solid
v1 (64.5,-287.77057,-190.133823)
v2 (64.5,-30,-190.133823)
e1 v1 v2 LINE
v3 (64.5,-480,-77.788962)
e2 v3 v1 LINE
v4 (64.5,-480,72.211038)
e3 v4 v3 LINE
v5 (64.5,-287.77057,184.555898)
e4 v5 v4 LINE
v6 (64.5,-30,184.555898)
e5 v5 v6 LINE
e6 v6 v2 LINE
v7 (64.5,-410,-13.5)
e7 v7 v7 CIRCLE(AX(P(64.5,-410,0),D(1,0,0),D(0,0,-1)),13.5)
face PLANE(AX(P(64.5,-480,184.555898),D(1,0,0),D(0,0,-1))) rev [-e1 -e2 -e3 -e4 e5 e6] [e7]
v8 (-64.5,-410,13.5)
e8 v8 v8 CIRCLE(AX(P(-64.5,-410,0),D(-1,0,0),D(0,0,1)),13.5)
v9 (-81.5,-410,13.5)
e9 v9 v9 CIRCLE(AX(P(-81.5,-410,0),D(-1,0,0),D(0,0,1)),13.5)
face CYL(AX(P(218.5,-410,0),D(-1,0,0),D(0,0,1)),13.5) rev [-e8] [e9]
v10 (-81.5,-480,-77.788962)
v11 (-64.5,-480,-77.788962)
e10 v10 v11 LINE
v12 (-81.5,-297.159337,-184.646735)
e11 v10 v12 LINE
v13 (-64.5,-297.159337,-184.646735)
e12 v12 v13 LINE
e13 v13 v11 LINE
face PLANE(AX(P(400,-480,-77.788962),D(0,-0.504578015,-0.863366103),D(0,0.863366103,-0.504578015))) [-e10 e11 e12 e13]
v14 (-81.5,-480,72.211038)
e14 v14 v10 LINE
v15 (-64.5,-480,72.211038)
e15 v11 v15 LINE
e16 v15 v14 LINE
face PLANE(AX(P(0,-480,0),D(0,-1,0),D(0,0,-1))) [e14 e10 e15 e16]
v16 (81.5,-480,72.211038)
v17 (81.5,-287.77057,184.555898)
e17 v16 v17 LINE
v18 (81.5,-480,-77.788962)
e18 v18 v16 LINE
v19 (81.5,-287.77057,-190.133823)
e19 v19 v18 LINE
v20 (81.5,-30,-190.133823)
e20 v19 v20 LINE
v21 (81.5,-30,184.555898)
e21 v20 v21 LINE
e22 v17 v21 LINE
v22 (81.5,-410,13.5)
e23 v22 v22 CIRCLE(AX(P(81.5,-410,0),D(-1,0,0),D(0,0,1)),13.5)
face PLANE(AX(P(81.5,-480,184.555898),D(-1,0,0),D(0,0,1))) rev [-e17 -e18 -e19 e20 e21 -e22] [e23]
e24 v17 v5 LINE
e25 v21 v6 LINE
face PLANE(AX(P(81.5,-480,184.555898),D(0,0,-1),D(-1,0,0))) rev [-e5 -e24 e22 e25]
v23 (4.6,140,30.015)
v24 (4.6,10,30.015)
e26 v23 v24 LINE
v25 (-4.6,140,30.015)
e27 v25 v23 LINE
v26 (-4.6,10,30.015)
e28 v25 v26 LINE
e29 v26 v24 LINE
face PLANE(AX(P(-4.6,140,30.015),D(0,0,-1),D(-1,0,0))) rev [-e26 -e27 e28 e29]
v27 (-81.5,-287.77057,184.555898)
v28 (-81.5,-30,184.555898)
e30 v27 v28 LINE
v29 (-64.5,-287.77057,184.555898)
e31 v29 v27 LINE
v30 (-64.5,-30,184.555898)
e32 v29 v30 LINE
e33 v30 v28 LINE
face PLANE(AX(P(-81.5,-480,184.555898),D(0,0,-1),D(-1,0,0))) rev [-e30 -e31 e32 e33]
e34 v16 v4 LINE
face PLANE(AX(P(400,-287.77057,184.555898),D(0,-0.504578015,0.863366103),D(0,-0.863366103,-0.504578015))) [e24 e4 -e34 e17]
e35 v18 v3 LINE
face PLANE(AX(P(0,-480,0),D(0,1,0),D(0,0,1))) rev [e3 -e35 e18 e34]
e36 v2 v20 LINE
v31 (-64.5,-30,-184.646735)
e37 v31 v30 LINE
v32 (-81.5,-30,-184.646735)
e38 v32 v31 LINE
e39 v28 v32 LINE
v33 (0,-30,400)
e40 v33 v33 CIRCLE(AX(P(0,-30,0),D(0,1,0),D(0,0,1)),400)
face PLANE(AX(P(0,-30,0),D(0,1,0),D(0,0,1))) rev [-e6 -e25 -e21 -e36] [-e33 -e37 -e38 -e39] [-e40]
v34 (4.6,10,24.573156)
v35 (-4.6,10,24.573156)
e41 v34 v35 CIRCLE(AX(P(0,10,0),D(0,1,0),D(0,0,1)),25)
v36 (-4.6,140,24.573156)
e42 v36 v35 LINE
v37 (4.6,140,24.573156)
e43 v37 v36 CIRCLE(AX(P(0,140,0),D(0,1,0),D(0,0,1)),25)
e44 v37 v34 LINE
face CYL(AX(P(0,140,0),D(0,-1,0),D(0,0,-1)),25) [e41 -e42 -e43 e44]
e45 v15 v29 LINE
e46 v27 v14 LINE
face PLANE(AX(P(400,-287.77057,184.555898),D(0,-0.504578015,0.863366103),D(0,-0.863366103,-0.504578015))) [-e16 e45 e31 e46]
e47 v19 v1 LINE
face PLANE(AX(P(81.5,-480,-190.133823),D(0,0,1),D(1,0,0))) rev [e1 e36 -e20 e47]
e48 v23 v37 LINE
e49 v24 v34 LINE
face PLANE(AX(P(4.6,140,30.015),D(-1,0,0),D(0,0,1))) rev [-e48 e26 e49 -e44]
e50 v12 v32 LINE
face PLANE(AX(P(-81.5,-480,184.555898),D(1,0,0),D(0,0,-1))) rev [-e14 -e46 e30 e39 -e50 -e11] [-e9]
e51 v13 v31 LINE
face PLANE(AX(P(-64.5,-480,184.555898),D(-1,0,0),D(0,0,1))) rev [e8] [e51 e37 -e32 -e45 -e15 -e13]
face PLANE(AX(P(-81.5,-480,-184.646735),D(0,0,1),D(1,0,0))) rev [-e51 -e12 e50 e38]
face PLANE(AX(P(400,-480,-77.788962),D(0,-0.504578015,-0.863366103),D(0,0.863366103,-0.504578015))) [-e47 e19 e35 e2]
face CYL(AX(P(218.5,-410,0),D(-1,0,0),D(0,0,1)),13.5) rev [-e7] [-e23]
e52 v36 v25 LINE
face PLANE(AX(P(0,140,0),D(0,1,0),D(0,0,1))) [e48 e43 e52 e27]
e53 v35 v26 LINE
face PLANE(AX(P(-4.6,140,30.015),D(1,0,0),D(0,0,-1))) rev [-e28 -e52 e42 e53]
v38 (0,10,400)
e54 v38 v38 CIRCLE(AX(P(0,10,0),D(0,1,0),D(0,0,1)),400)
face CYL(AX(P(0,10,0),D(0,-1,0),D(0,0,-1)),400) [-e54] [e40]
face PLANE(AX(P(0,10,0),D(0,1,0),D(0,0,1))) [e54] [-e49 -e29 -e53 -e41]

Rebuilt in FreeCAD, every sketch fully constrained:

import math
import FreeCAD as App
import Part
import Sketcher
Q = App.Units.Quantity


def add_polygon(sketch, points):
    """Adds a closed chain of lines whose ends are joined by coincident constraints."""
    first, n = sketch.GeometryCount, len(points)
    for a, b in zip(points, points[1:] + points[:1]):
        sketch.addGeometry(Part.LineSegment(App.Vector(*a, 0), App.Vector(*b, 0)), False)
    for i in range(n):
        sketch.addConstraint(Sketcher.Constraint("Coincident", first + i, 2, first + (i + 1) % n, 1))

doc = App.newDocument("Part")
body = doc.addObject("PartDesign::Body", "Body")

# Sketch on XZ plane
sketch1 = doc.addObject("Sketcher::SketchObject", "Sketch")
body.addObject(sketch1)
sketch1.AttachmentSupport = (doc.XZ_Plane, [""])
sketch1.MapMode = "FlatFace"
sketch1.addGeometry(Part.Circle(App.Vector(0, 0, 0), App.Vector(0, 0, 1), 400), False)
sketch1.addConstraint([
    Sketcher.Constraint("Coincident", 0, 3, -1, 1),
    Sketcher.Constraint("Diameter", 0, Q("800 mm")),
])
pad1 = doc.addObject("PartDesign::Pad", "Pad")
body.addObject(pad1)
pad1.Profile = sketch1
pad1.Length = 10
pad1.Reversed = True

# Sketch on XZ plane
sketch2 = doc.addObject("Sketcher::SketchObject", "Sketch001")
body.addObject(sketch2)
sketch2.AttachmentSupport = (doc.XZ_Plane, [""])
sketch2.MapMode = "FlatFace"
sketch2.AttachmentOffset = App.Placement(App.Vector(0, 0, -10), App.Rotation())
sketch2.addGeometry([
    Part.LineSegment(App.Vector(-4.6, 30.015, 0), App.Vector(4.6, 30.015, 0)),
    Part.LineSegment(App.Vector(4.6, 30.015, 0), App.Vector(4.6, 24.573156, 0)),
    Part.ArcOfCircle(Part.Circle(App.Vector(0, 0, 0), App.Vector(0, 0, 1), 25), math.radians(100.602836), math.radians(439.397164)),
    Part.LineSegment(App.Vector(-4.6, 24.573156, 0), App.Vector(-4.6, 30.015, 0)),
], False)
sketch2.addConstraint([
    Sketcher.Constraint("Coincident", 0, 2, 1, 1),
    Sketcher.Constraint("Coincident", 1, 2, 2, 2),
    Sketcher.Constraint("Coincident", 2, 1, 3, 1),
    Sketcher.Constraint("Coincident", 3, 2, 0, 1),
    Sketcher.Constraint("Horizontal", 0),
    Sketcher.Constraint("Vertical", 1),
    Sketcher.Constraint("Vertical", 3),
    Sketcher.Constraint("Coincident", 2, 3, -1, 1),
    Sketcher.Constraint("Horizontal", 1, 2, 2, 1),
    Sketcher.Constraint("Radius", 2, Q("25 mm")),
    Sketcher.Constraint("DistanceX", 0, 1, 0, 2, Q("9.2 mm")),
    Sketcher.Constraint("DistanceY", -1, 1, 0, 2, Q("30.015 mm")),
])
pad2 = doc.addObject("PartDesign::Pad", "Pad001")
body.addObject(pad2)
pad2.Profile = sketch2
pad2.Length = 130
pad2.Reversed = True

# Sketch on XZ plane
sketch3 = doc.addObject("Sketcher::SketchObject", "Sketch002")
body.addObject(sketch3)
sketch3.AttachmentSupport = (doc.XZ_Plane, [""])
sketch3.MapMode = "FlatFace"
sketch3.AttachmentOffset = App.Placement(App.Vector(0, 0, 30), App.Rotation())
sketch3.addGeometry(Part.Circle(App.Vector(0, 0, 0), App.Vector(0, 0, 1), 400), False)
sketch3.addConstraint([
    Sketcher.Constraint("Coincident", 0, 3, -1, 1),
    Sketcher.Constraint("Diameter", 0, Q("800 mm")),
])
pad3 = doc.addObject("PartDesign::Pad", "Pad002")
body.addObject(pad3)
pad3.Profile = sketch3
pad3.Length = 30
pad3.Reversed = True

# Sketch on XZ plane
sketch4 = doc.addObject("Sketcher::SketchObject", "Sketch003")
body.addObject(sketch4)
sketch4.AttachmentSupport = (doc.XZ_Plane, [""])
sketch4.MapMode = "FlatFace"
sketch4.AttachmentOffset = App.Placement(App.Vector(0, 0, 30), App.Rotation())
add_polygon(sketch4, [(-81.5, 184.555898), (-81.5, -184.646735), (-64.5, -184.646735), (-64.5, 184.555898)])  # lines 0-3
add_polygon(sketch4, [(64.5, 184.555898), (64.5, -190.133823), (81.5, -190.133823), (81.5, 184.555898)])  # lines 4-7
sketch4.addConstraint([
    Sketcher.Constraint("Vertical", 0),
    Sketcher.Constraint("Horizontal", 1),
    Sketcher.Constraint("Vertical", 2),
    Sketcher.Constraint("Horizontal", 3),
    Sketcher.Constraint("Vertical", 4),
    Sketcher.Constraint("Horizontal", 5),
    Sketcher.Constraint("Vertical", 6),
    Sketcher.Constraint("Horizontal", 7),
    Sketcher.Constraint("Symmetric", 3, 2, 6, 2, -2),
    Sketcher.Constraint("Equal", 3, 5),
    Sketcher.Constraint("DistanceX", 1, 1, 1, 2, Q("17 mm")),
    Sketcher.Constraint("DistanceX", 1, 2, 4, 2, Q("129 mm")),
    Sketcher.Constraint("DistanceY", 4, 2, 4, 1, Q("374.689721 mm")),
    Sketcher.Constraint("DistanceY", -1, 1, 2, 2, Q("184.555898 mm")),
    Sketcher.Constraint("DistanceY", 0, 2, 0, 1, Q("369.202633 mm")),
])
pad4 = doc.addObject("PartDesign::Pad", "Pad003")
body.addObject(pad4)
pad4.Profile = sketch4
pad4.Length = 450

# Sketch on YZ plane
sketch5 = doc.addObject("Sketcher::SketchObject", "Sketch004")
body.addObject(sketch5)
sketch5.AttachmentSupport = (doc.YZ_Plane, [""])
sketch5.MapMode = "FlatFace"
sketch5.AttachmentOffset = App.Placement(App.Vector(0, 0, 81.5), App.Rotation())
add_polygon(sketch5, [(-480, 72.211038), (-287.77057, 184.555898), (-480, 184.555898)])  # lines 0-2
add_polygon(sketch5, [(-287.77057, -190.133823), (-480, -77.788962), (-480, -190.133823)])  # lines 3-5
sketch5.addConstraint([
    Sketcher.Constraint("Horizontal", 1),
    Sketcher.Constraint("Vertical", 2),
    Sketcher.Constraint("Vertical", 4),
    Sketcher.Constraint("Horizontal", 5),
    Sketcher.Constraint("Vertical", 2, 2, 3, 2),
    Sketcher.Constraint("Vertical", 0, 2, 5, 2),
    Sketcher.Constraint("Equal", 2, 4),
    Sketcher.Constraint("DistanceX", 1, 2, -1, 1, Q("480 mm")),
    Sketcher.Constraint("DistanceY", 3, 2, 2, 2, Q("150 mm")),
    Sketcher.Constraint("DistanceX", 1, 2, 1, 1, Q("192.22943 mm")),
    Sketcher.Constraint("DistanceY", 2, 2, 2, 1, Q("112.34486 mm")),
    Sketcher.Constraint("DistanceY", -1, 1, 0, 2, Q("184.555898 mm")),
])
pocket1 = doc.addObject("PartDesign::Pocket", "Pocket")
body.addObject(pocket1)
pocket1.Profile = sketch5
pocket1.Type = "ThroughAll"
pocket1.Midplane = True

# Sketch on YZ plane
sketch6 = doc.addObject("Sketcher::SketchObject", "Sketch005")
body.addObject(sketch6)
sketch6.AttachmentSupport = (doc.YZ_Plane, [""])
sketch6.MapMode = "FlatFace"
sketch6.AttachmentOffset = App.Placement(App.Vector(0, 0, -81.5), App.Rotation())
sketch6.addGeometry(Part.Circle(App.Vector(-410, 0, 0), App.Vector(0, 0, 1), 13.5), False)
sketch6.addConstraint([
    Sketcher.Constraint("PointOnObject", 0, 3, -1),
    Sketcher.Constraint("Diameter", 0, Q("27 mm")),
    Sketcher.Constraint("DistanceX", 0, 3, -1, 1, Q("410 mm")),
])
pocket2 = doc.addObject("PartDesign::Pocket", "Pocket001")
body.addObject(pocket2)
pocket2.Profile = sketch6
pocket2.Length = 300
pocket2.Reversed = True

doc.recompute()
